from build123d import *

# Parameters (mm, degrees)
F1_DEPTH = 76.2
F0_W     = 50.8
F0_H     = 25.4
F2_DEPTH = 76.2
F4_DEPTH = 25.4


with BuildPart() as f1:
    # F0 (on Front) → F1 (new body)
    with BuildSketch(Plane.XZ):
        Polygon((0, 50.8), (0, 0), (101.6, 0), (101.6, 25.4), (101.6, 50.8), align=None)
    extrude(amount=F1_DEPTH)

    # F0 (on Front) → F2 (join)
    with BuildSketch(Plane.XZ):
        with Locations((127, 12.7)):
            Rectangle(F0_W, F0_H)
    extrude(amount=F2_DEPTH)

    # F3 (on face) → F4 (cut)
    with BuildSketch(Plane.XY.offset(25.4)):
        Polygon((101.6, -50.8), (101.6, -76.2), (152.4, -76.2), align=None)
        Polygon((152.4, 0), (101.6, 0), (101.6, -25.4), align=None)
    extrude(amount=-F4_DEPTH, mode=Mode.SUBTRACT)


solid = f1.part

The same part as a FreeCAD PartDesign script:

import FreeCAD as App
import Part
import Sketcher
Q = App.Units.Quantity

doc = App.newDocument("Part")
body = doc.addObject("PartDesign::Body", "Body")

# Sketch on XZ plane
sketch1 = body.newObject("Sketcher::SketchObject", "Sketch")
sketch1.AttachmentSupport = (doc.getObject("XZ_Plane"), [""])
sketch1.MapMode = "FlatFace"
sketch1.addGeometry(Part.LineSegment(App.Vector(0, 51, 0), App.Vector(0, 0, 0)), False)
sketch1.addGeometry(Part.LineSegment(App.Vector(0, 0, 0), App.Vector(102, 0, 0)), False)
sketch1.addGeometry(Part.LineSegment(App.Vector(102, 0, 0), App.Vector(102, 51, 0)), False)
sketch1.addGeometry(Part.LineSegment(App.Vector(102, 51, 0), App.Vector(0, 51, 0)), False)
sketch1.addConstraint(Sketcher.Constraint("Coincident", 0, 2, 1, 1))
sketch1.addConstraint(Sketcher.Constraint("Coincident", 1, 2, 2, 1))
sketch1.addConstraint(Sketcher.Constraint("Coincident", 2, 2, 3, 1))
sketch1.addConstraint(Sketcher.Constraint("Coincident", 3, 2, 0, 1))
sketch1.addConstraint(Sketcher.Constraint("Vertical", 0))
sketch1.addConstraint(Sketcher.Constraint("Horizontal", 1))
sketch1.addConstraint(Sketcher.Constraint("Vertical", 2))
sketch1.addConstraint(Sketcher.Constraint("Horizontal", 3))
sketch1.addConstraint(Sketcher.Constraint("Coincident", 0, 2, -1, 1))
sketch1.addConstraint(Sketcher.Constraint("DistanceX", 1, 1, 1, 2, Q("4 in")))
sketch1.addConstraint(Sketcher.Constraint("DistanceY", 0, 2, 0, 1, Q("2 in")))
pad1 = body.newObject("PartDesign::Pad", "Pad")
pad1.Profile = sketch1
pad1.Length = Q("3 in")

# Sketch on XZ plane
sketch2 = body.newObject("Sketcher::SketchObject", "Sketch001")
sketch2.AttachmentSupport = (doc.getObject("XZ_Plane"), [""])
sketch2.MapMode = "FlatFace"
sketch2.addGeometry(Part.LineSegment(App.Vector(102, 25, 0), App.Vector(102, 0, 0)), False)
sketch2.addGeometry(Part.LineSegment(App.Vector(102, 0, 0), App.Vector(152, 0, 0)), False)
sketch2.addGeometry(Part.LineSegment(App.Vector(152, 0, 0), App.Vector(152, 25, 0)), False)
sketch2.addGeometry(Part.LineSegment(App.Vector(152, 25, 0), App.Vector(102, 25, 0)), False)
sketch2.addConstraint(Sketcher.Constraint("Coincident", 0, 2, 1, 1))
sketch2.addConstraint(Sketcher.Constraint("Coincident", 1, 2, 2, 1))
sketch2.addConstraint(Sketcher.Constraint("Coincident", 2, 2, 3, 1))
sketch2.addConstraint(Sketcher.Constraint("Coincident", 3, 2, 0, 1))
sketch2.addConstraint(Sketcher.Constraint("Vertical", 0))
sketch2.addConstraint(Sketcher.Constraint("Horizontal", 1))
sketch2.addConstraint(Sketcher.Constraint("Vertical", 2))
sketch2.addConstraint(Sketcher.Constraint("Horizontal", 3))
sketch2.addConstraint(Sketcher.Constraint("PointOnObject", 0, 2, -1))
sketch2.addConstraint(Sketcher.Constraint("DistanceX", 1, 1, 1, 2, Q("2 in")))
sketch2.addConstraint(Sketcher.Constraint("DistanceY", 0, 2, 0, 1, Q("1 in")))
sketch2.addConstraint(Sketcher.Constraint("DistanceX", -1, 1, 0, 2, Q("4 in")))
pad2 = body.newObject("PartDesign::Pad", "Pad001")
pad2.Profile = sketch2
pad2.Length = Q("3 in")

# Sketch on XY plane
sketch3 = body.newObject("Sketcher::SketchObject", "Sketch002")
sketch3.AttachmentSupport = (doc.getObject("XY_Plane"), [""])
sketch3.MapMode = "FlatFace"
sketch3.AttachmentOffset = App.Placement(App.Vector(0, 0, 1 * 25.4), App.Rotation())
sketch3.addGeometry(Part.LineSegment(App.Vector(102, -51, 0), App.Vector(102, -76, 0)), False)
sketch3.addGeometry(Part.LineSegment(App.Vector(102, -76, 0), App.Vector(152, -76, 0)), False)
sketch3.addGeometry(Part.LineSegment(App.Vector(152, -76, 0), App.Vector(102, -51, 0)), False)
sketch3.addGeometry(Part.LineSegment(App.Vector(152, 0, 0), App.Vector(102, 0, 0)), False)
sketch3.addGeometry(Part.LineSegment(App.Vector(102, 0, 0), App.Vector(102, -25, 0)), False)
sketch3.addGeometry(Part.LineSegment(App.Vector(102, -25, 0), App.Vector(152, 0, 0)), False)
sketch3.addConstraint(Sketcher.Constraint("Coincident", 0, 2, 1, 1))
sketch3.addConstraint(Sketcher.Constraint("Coincident", 1, 2, 2, 1))
sketch3.addConstraint(Sketcher.Constraint("Coincident", 2, 2, 0, 1))
sketch3.addConstraint(Sketcher.Constraint("Coincident", 3, 2, 4, 1))
sketch3.addConstraint(Sketcher.Constraint("Coincident", 4, 2, 5, 1))
sketch3.addConstraint(Sketcher.Constraint("Coincident", 5, 2, 3, 1))
sketch3.addConstraint(Sketcher.Constraint("Vertical", 0))
sketch3.addConstraint(Sketcher.Constraint("Horizontal", 1))
sketch3.addConstraint(Sketcher.Constraint("Horizontal", 3))
sketch3.addConstraint(Sketcher.Constraint("Vertical", 4))
sketch3.addConstraint(Sketcher.Constraint("PointOnObject", 3, 2, -1))
sketch3.addConstraint(Sketcher.Constraint("Vertical", 2, 2, 3, 2))
sketch3.addConstraint(Sketcher.Constraint("Vertical", 1, 2, 5, 2))
sketch3.addConstraint(Sketcher.Constraint("Equal", 0, 4))
sketch3.addConstraint(Sketcher.Constraint("DistanceX", 1, 1, 1, 2, Q("2 in")))
sketch3.addConstraint(Sketcher.Constraint("DistanceY", 0, 2, 0, 1, Q("1 in")))
sketch3.addConstraint(Sketcher.Constraint("DistanceX", -1, 1, 0, 2, Q("4 in")))
sketch3.addConstraint(Sketcher.Constraint("DistanceY", 0, 2, -1, 1, Q("3 in")))
pocket1 = body.newObject("PartDesign::Pocket", "Pocket")
pocket1.Profile = sketch3
pocket1.Length = Q("1 in")

doc.recompute()
